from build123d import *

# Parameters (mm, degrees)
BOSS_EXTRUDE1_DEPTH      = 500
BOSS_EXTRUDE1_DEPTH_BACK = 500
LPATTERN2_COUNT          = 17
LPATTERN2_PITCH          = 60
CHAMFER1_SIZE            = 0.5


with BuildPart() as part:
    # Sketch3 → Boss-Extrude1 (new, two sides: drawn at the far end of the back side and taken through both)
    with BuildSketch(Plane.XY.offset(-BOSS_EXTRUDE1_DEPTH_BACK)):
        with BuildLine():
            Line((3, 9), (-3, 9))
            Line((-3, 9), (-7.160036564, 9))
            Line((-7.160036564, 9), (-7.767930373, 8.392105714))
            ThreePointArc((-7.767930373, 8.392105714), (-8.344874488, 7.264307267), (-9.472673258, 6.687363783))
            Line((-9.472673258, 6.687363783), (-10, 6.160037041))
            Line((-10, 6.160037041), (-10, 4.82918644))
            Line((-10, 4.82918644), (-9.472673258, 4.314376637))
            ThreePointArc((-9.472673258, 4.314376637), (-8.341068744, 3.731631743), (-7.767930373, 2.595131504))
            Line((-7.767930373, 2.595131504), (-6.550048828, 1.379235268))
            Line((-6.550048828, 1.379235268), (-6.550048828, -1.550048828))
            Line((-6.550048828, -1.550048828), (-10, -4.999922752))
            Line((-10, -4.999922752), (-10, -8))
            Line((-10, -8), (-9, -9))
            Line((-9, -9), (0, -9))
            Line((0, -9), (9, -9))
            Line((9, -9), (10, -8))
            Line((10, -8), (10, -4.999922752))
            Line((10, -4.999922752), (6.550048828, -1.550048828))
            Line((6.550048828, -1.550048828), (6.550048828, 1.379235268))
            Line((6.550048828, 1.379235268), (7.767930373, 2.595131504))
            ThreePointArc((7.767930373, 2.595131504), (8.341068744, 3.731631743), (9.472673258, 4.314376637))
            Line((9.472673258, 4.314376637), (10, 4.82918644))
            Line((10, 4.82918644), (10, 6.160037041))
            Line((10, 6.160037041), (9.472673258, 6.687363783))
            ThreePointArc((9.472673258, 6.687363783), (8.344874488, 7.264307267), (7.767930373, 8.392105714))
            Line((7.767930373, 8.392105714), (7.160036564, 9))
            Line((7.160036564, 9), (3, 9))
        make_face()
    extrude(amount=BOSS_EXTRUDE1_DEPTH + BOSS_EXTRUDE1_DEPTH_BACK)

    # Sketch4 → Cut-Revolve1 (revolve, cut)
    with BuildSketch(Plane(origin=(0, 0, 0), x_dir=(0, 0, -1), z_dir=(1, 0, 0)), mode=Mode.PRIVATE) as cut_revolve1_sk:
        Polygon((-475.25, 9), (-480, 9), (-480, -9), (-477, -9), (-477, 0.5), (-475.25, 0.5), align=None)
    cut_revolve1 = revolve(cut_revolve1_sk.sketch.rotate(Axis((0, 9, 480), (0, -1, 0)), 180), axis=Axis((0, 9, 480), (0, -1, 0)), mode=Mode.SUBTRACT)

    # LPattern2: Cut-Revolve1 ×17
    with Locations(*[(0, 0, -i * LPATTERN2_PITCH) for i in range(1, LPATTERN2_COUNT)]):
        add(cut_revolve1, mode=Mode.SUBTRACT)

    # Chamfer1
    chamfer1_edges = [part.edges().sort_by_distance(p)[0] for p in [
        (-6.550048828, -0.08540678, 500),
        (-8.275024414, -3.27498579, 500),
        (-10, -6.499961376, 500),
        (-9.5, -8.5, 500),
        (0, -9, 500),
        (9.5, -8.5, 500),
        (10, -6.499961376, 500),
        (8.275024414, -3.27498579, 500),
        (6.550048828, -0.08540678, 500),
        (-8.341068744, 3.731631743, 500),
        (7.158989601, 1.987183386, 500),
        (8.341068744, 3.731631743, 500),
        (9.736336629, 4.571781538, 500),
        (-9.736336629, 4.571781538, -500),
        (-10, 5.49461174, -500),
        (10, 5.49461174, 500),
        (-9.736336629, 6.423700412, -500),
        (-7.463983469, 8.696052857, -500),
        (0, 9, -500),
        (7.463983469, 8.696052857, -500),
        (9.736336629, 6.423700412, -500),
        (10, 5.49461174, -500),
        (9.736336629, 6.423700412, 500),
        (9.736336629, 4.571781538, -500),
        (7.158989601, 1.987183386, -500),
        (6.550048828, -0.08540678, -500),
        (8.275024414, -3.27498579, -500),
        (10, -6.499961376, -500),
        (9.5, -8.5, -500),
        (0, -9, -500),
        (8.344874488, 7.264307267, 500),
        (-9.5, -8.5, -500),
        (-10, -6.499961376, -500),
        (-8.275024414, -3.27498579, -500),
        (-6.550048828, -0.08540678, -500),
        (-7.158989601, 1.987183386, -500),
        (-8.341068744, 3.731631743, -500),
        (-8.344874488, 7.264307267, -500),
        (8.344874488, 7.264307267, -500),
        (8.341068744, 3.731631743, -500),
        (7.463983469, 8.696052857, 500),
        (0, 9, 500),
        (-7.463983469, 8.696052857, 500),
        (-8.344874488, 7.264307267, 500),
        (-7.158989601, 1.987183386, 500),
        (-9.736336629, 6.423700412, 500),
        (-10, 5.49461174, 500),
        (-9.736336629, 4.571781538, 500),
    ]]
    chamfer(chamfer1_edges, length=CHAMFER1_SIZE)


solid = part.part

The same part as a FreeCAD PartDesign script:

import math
import FreeCAD as App
import Part
import Sketcher
from FreeCAD import Vector


def edges_at(feature, points):
    """Names of the edges that pass closest to the given points."""
    edges = feature.Shape.Edges
    near = lambda p: min(range(len(edges)), key=lambda i: edges[i].distToShape(Part.Vertex(*p))[0])
    return sorted({f"Edge{near(p) + 1}" for p in points})


def add_polygon(sketch, points):
    """Adds a closed chain of lines whose ends are joined by coincident constraints."""
    first, n = sketch.GeometryCount, len(points)
    for a, b in zip(points, points[1:] + points[:1]):
        sketch.addGeometry(Part.LineSegment(App.Vector(*a, 0), App.Vector(*b, 0)), False)
    for i in range(n):
        sketch.addConstraint(Sketcher.Constraint("Coincident", first + i, 2, first + (i + 1) % n, 1))

doc = App.newDocument("Part")
body = doc.addObject("PartDesign::Body", "Body")

# Sketch on XY plane
sketch1 = body.newObject("Sketcher::SketchObject", "Sketch")
sketch1.AttachmentSupport = (doc.getObject("XY_Plane"), [""])
sketch1.MapMode = "FlatFace"
sketch1.addGeometry(Part.LineSegment(Vector(-7.2, 9, 0), Vector(-7.8, 8.4, 0)), False)
sketch1.addGeometry(Part.ArcOfCircle(Part.Circle(Vector(-9.8, 8.7, 0), Vector(0, 0, 1), 2.1), math.radians(-81), math.radians(-9)), False)
sketch1.addGeometry(Part.LineSegment(Vector(-9.5, 6.7, 0), Vector(-10, 6.2, 0)), False)
sketch1.addGeometry(Part.LineSegment(Vector(-10, 6.2, 0), Vector(-10, 4.8, 0)), False)
sketch1.addGeometry(Part.LineSegment(Vector(-10, 4.8, 0), Vector(-9.5, 4.3, 0)), False)
sketch1.addGeometry(Part.ArcOfCircle(Part.Circle(Vector(-9.8, 2.3, 0), Vector(0, 0, 1), 2.1), math.radians(9), math.radians(81)), False)
sketch1.addGeometry(Part.LineSegment(Vector(-7.8, 2.6, 0), Vector(-6.6, 1.4, 0)), False)
sketch1.addGeometry(Part.LineSegment(Vector(-6.6, 1.4, 0), Vector(-6.6, -1.6, 0)), False)
sketch1.addGeometry(Part.LineSegment(Vector(-6.6, -1.6, 0), Vector(-10, -5, 0)), False)
sketch1.addGeometry(Part.LineSegment(Vector(-10, -5, 0), Vector(-10, -8, 0)), False)
sketch1.addGeometry(Part.LineSegment(Vector(-10, -8, 0), Vector(-9, -9, 0)), False)
sketch1.addGeometry(Part.LineSegment(Vector(-9, -9, 0), Vector(9, -9, 0)), False)
sketch1.addGeometry(Part.LineSegment(Vector(9, -9, 0), Vector(10, -8, 0)), False)
sketch1.addGeometry(Part.LineSegment(Vector(10, -8, 0), Vector(10, -5, 0)), False)
sketch1.addGeometry(Part.LineSegment(Vector(10, -5, 0), Vector(6.6, -1.6, 0)), False)
sketch1.addGeometry(Part.LineSegment(Vector(6.6, -1.6, 0), Vector(6.6, 1.4, 0)), False)
sketch1.addGeometry(Part.LineSegment(Vector(6.6, 1.4, 0), Vector(7.8, 2.6, 0)), False)
sketch1.addGeometry(Part.ArcOfCircle(Part.Circle(Vector(9.8, 2.3, 0), Vector(0, 0, 1), 2.1), math.radians(99), math.radians(171)), False)
sketch1.addGeometry(Part.LineSegment(Vector(9.5, 4.3, 0), Vector(10, 4.8, 0)), False)
sketch1.addGeometry(Part.LineSegment(Vector(10, 4.8, 0), Vector(10, 6.2, 0)), False)
sketch1.addGeometry(Part.LineSegment(Vector(10, 6.2, 0), Vector(9.5, 6.7, 0)), False)
sketch1.addGeometry(Part.ArcOfCircle(Part.Circle(Vector(9.8, 8.7, 0), Vector(0, 0, 1), 2.1), math.radians(-171), math.radians(-99)), False)
sketch1.addGeometry(Part.LineSegment(Vector(7.8, 8.4, 0), Vector(7.2, 9, 0)), False)
sketch1.addGeometry(Part.LineSegment(Vector(7.2, 9, 0), Vector(-7.2, 9, 0)), False)
sketch1.addConstraint(Sketcher.Constraint("Coincident", 0, 2, 1, 2))
sketch1.addConstraint(Sketcher.Constraint("Coincident", 1, 1, 2, 1))
sketch1.addConstraint(Sketcher.Constraint("Coincident", 2, 2, 3, 1))
sketch1.addConstraint(Sketcher.Constraint("Coincident", 3, 2, 4, 1))
sketch1.addConstraint(Sketcher.Constraint("Coincident", 4, 2, 5, 2))
sketch1.addConstraint(Sketcher.Constraint("Coincident", 5, 1, 6, 1))
sketch1.addConstraint(Sketcher.Constraint("Coincident", 6, 2, 7, 1))
sketch1.addConstraint(Sketcher.Constraint("Coincident", 7, 2, 8, 1))
sketch1.addConstraint(Sketcher.Constraint("Coincident", 8, 2, 9, 1))
sketch1.addConstraint(Sketcher.Constraint("Coincident", 9, 2, 10, 1))
sketch1.addConstraint(Sketcher.Constraint("Coincident", 10, 2, 11, 1))
sketch1.addConstraint(Sketcher.Constraint("Coincident", 11, 2, 12, 1))
sketch1.addConstraint(Sketcher.Constraint("Coincident", 12, 2, 13, 1))
sketch1.addConstraint(Sketcher.Constraint("Coincident", 13, 2, 14, 1))
sketch1.addConstraint(Sketcher.Constraint("Coincident", 14, 2, 15, 1))
sketch1.addConstraint(Sketcher.Constraint("Coincident", 15, 2, 16, 1))
sketch1.addConstraint(Sketcher.Constraint("Coincident", 16, 2, 17, 2))
sketch1.addConstraint(Sketcher.Constraint("Coincident", 17, 1, 18, 1))
sketch1.addConstraint(Sketcher.Constraint("Coincident", 18, 2, 19, 1))
sketch1.addConstraint(Sketcher.Constraint("Coincident", 19, 2, 20, 1))
sketch1.addConstraint(Sketcher.Constraint("Coincident", 20, 2, 21, 2))
sketch1.addConstraint(Sketcher.Constraint("Coincident", 21, 1, 22, 1))
sketch1.addConstraint(Sketcher.Constraint("Coincident", 22, 2, 23, 1))
sketch1.addConstraint(Sketcher.Constraint("Coincident", 23, 2, 0, 1))
sketch1.addConstraint(Sketcher.Constraint("Vertical", 3))
sketch1.addConstraint(Sketcher.Constraint("Vertical", 7))
sketch1.addConstraint(Sketcher.Constraint("Vertical", 9))
sketch1.addConstraint(Sketcher.Constraint("Horizontal", 11))
sketch1.addConstraint(Sketcher.Constraint("Vertical", 13))
sketch1.addConstraint(Sketcher.Constraint("Vertical", 15))
sketch1.addConstraint(Sketcher.Constraint("Vertical", 19))
sketch1.addConstraint(Sketcher.Constraint("Horizontal", 23))
sketch1.addConstraint(Sketcher.Constraint("Equal", 1, 5))
sketch1.addConstraint(Sketcher.Constraint("Equal", 5, 17))
sketch1.addConstraint(Sketcher.Constraint("Equal", 17, 21))
sketch1.addConstraint(Sketcher.Constraint("Symmetric", 5, 3, 17, 3, -2))
sketch1.addConstraint(Sketcher.Constraint("Symmetric", 1, 3, 21, 3, -2))
sketch1.addConstraint(Sketcher.Constraint("Symmetric", 9, 2, 12, 2, -2))
sketch1.addConstraint(Sketcher.Constraint("Symmetric", 7, 2, 14, 2, -2))
sketch1.addConstraint(Sketcher.Constraint("Symmetric", 3, 2, 18, 2, -2))
sketch1.addConstraint(Sketcher.Constraint("Parallel", 0, 2))
sketch1.addConstraint(Sketcher.Constraint("Perpendicular", 2, 10))
sketch1.addConstraint(Sketcher.Constraint("Perpendicular", 10, 12))
sketch1.addConstraint(Sketcher.Constraint("Perpendicular", 12, 20))
sketch1.addConstraint(Sketcher.Constraint("Parallel", 20, 22))
sketch1.addConstraint(Sketcher.Constraint("Horizontal", 8, 2, 13, 2))
sketch1.addConstraint(Sketcher.Constraint("Horizontal", 6, 2, 15, 2))
sketch1.addConstraint(Sketcher.Constraint("Horizontal", 5, 1, 16, 2))
sketch1.addConstraint(Sketcher.Constraint("Horizontal", 4, 2, 17, 1))
sketch1.addConstraint(Sketcher.Constraint("Horizontal", 2, 2, 19, 2))
sketch1.addConstraint(Sketcher.Constraint("Horizontal", 1, 1, 20, 2))
sketch1.addConstraint(Sketcher.Constraint("Horizontal", 0, 2, 21, 1))
sketch1.addConstraint(Sketcher.Constraint("Vertical", 1, 1, 4, 2))
sketch1.addConstraint(Sketcher.Constraint("Vertical", 0, 2, 5, 1))
sketch1.addConstraint(Sketcher.Constraint("Vertical", 3, 2, 8, 2))
sketch1.addConstraint(Sketcher.Constraint("DistanceX", 11, 1, 11, 2, 18.0))
sketch1.addConstraint(Sketcher.Constraint("Radius", 1, 2.059999))
sketch1.addConstraint(Sketcher.Constraint("DistanceX", 2, 2, -1, 1, 10.0))
sketch1.addConstraint(Sketcher.Constraint("DistanceY", 9, 2, -1, 1, 8.0))
sketch1.addConstraint(Sketcher.Constraint("DistanceY", -1, 1, 22, 2, 9.0))
sketch1.addConstraint(Sketcher.Constraint("DistanceY", 3, 2, 3, 1, 1.330851))
sketch1.addConstraint(Sketcher.Constraint("DistanceY", 5, 3, 4, 2, 2.033202))
sketch1.addConstraint(Sketcher.Constraint("DistanceY", 6, 2, 2, 2, 4.780802))
sketch1.addConstraint(Sketcher.Constraint("DistanceY", 8, 2, 4, 2, 9.314299))
sketch1.addConstraint(Sketcher.Constraint("Distance", 6, 1.720941))
sketch1.addConstraint(Sketcher.Constraint("DistanceX", 23, 2, 23, 1, 14.320073))
sketch1.addConstraint(Sketcher.Constraint("DistanceY", 7, 2, 7, 1, 2.929284))
sketch1.addConstraint(Sketcher.Constraint("DistanceY", 9, 2, 9, 1, 3.000077))
sketch1.addConstraint(Sketcher.Constraint("DistanceX", 0, 2, -1, 1, 7.76793))
sketch1.addConstraint(Sketcher.Constraint("DistanceY", -1, 1, 5, 1, 2.595132))
sketch1.addConstraint(Sketcher.Constraint("DistanceX", 6, 2, -1, 1, 6.550049))
pad1 = body.newObject("PartDesign::Pad", "Pad")
pad1.Profile = sketch1
pad1.Type = "TwoLengths"
pad1.Length = 500
pad1.Length2 = 500

# Sketch on YZ plane
sketch2 = body.newObject("Sketcher::SketchObject", "Sketch001")
sketch2.AttachmentSupport = (doc.getObject("YZ_Plane"), [""])
sketch2.MapMode = "FlatFace"
add_polygon(sketch2, [(9, 475.2), (9, 480), (-9, 480), (-9, 477), (0.5, 477), (0.5, 475.2)])  # lines 0-5
sketch2.addGeometry(Part.LineSegment(Vector(9, 480, 0), Vector(-9, 480, 0)), True)  # axis
sketch2.addConstraint(Sketcher.Constraint("Vertical", 0))
sketch2.addConstraint(Sketcher.Constraint("Horizontal", 1))
sketch2.addConstraint(Sketcher.Constraint("Vertical", 2))
sketch2.addConstraint(Sketcher.Constraint("Horizontal", 3))
sketch2.addConstraint(Sketcher.Constraint("Vertical", 4))
sketch2.addConstraint(Sketcher.Constraint("Horizontal", 5))
sketch2.addConstraint(Sketcher.Constraint("Horizontal", 6))
sketch2.addConstraint(Sketcher.Constraint("Coincident", 6, 1, 0, 2))
sketch2.addConstraint(Sketcher.Constraint("Vertical", 2, 2, 6, 2))
sketch2.addConstraint(Sketcher.Constraint("DistanceX", 1, 2, 1, 1, 18.0))
sketch2.addConstraint(Sketcher.Constraint("DistanceY", 2, 2, 2, 1, 3.0))
sketch2.addConstraint(Sketcher.Constraint("DistanceX", 3, 1, 3, 2, 9.5))
sketch2.addConstraint(Sketcher.Constraint("DistanceX", -1, 1, 0, 2, 9.0))
sketch2.addConstraint(Sketcher.Constraint("DistanceY", -1, 1, 0, 2, 480.0))
sketch2.addConstraint(Sketcher.Constraint("DistanceY", 0, 1, 0, 2, 4.75))
groove = body.newObject("PartDesign::Groove", "Groove")
groove.Profile = sketch2
groove.ReferenceAxis = (sketch2, ["Axis0"])
groove.Angle = 360
doc.recompute()

linearpattern = body.newObject("PartDesign::LinearPattern", "LinearPattern")
linearpattern.Originals = [groove]
linearpattern.Direction = (doc.getObject("Z_Axis"), [""])
linearpattern.Mode = "offset"
linearpattern.Offset = 60
linearpattern.Occurrences = 17
linearpattern.Reversed = True
body.Tip = linearpattern
doc.recompute()

chamfer = body.newObject("PartDesign::Chamfer", "Chamfer")
chamfer.Base = (linearpattern, edges_at(linearpattern, [
    (-6.55, -0.085, 500),
    (-8.275, -3.275, 500),
    (-10, -6.5, 500),
    (-9.5, -8.5, 500),
    (0, -9, 500),
    (9.5, -8.5, 500),
    (10, -6.5, 500),
    (8.275, -3.275, 500),
    (6.55, -0.085, 500),
    (-8.341, 3.732, 500),
    (7.159, 1.987, 500),
    (8.341, 3.732, 500),
    (9.736, 4.572, 500),
    (-9.736, 4.572, -500),
    (-10, 5.495, -500),
    (10, 5.495, 500),
    (-9.736, 6.424, -500),
    (-7.464, 8.696, -500),
    (0, 9, -500),
    (7.464, 8.696, -500),
    (9.736, 6.424, -500),
    (10, 5.495, -500),
    (9.736, 6.424, 500),
    (9.736, 4.572, -500),
    (7.159, 1.987, -500),
    (6.55, -0.085, -500),
    (8.275, -3.275, -500),
    (10, -6.5, -500),
    (9.5, -8.5, -500),
    (0, -9, -500),
    (8.345, 7.264, 500),
    (-9.5, -8.5, -500),
    (-10, -6.5, -500),
    (-8.275, -3.275, -500),
    (-6.55, -0.085, -500),
    (-7.159, 1.987, -500),
    (-8.341, 3.732, -500),
    (-8.345, 7.264, -500),
    (8.345, 7.264, -500),
    (8.341, 3.732, -500),
    (7.464, 8.696, 500),
    (0, 9, 500),
    (-7.464, 8.696, 500),
    (-8.345, 7.264, 500),
    (-7.159, 1.987, 500),
    (-9.736, 6.424, 500),
    (-10, 5.495, 500),
    (-9.736, 4.572, 500),
]))
chamfer.Size = 0.5

doc.recompute()
